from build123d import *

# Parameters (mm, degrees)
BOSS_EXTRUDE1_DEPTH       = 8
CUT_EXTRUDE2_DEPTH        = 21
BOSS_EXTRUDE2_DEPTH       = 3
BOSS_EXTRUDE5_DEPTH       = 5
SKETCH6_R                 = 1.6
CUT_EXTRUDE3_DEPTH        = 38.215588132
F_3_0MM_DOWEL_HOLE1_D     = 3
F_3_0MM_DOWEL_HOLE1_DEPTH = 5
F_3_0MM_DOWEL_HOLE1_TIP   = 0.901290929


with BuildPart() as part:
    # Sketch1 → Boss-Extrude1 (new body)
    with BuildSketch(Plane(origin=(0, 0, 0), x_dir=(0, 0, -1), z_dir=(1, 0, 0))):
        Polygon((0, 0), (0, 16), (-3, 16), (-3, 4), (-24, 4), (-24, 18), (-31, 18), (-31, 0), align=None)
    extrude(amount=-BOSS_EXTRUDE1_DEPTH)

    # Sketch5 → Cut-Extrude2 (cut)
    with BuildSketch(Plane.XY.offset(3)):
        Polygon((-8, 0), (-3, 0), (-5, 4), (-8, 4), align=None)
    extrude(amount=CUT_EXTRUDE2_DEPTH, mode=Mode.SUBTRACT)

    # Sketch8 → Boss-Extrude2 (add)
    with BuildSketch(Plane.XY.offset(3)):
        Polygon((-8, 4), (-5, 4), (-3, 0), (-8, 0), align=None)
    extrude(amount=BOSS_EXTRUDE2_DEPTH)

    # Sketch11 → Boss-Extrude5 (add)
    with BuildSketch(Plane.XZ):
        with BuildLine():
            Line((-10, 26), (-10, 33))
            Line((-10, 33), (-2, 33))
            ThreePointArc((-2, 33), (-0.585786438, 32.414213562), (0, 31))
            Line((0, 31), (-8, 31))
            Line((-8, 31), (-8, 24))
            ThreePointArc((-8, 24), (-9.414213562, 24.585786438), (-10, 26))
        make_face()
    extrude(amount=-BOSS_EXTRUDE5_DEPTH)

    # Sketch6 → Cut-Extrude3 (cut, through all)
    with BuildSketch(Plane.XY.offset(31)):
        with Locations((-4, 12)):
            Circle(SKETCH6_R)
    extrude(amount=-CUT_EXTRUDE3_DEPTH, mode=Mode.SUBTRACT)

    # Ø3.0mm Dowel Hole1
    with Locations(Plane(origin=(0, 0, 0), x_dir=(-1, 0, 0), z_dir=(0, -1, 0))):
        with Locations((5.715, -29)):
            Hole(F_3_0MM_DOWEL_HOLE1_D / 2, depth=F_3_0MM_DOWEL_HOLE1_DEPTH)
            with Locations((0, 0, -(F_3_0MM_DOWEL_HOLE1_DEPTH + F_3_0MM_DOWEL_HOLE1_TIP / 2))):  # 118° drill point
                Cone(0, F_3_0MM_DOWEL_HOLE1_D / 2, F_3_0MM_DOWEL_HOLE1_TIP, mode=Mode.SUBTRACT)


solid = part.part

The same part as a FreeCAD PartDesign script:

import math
import FreeCAD as App
import Part
import Sketcher

V = App.Vector
Q = App.Units.Quantity


def add_polygon(sketch, points):
    """Adds a closed chain of lines whose ends are joined by coincident constraints."""
    first, n = sketch.GeometryCount, len(points)
    for a, b in zip(points, points[1:] + points[:1]):
        sketch.addGeometry(Part.LineSegment(App.Vector(*a, 0), App.Vector(*b, 0)), False)
    for i in range(n):
        sketch.addConstraint(Sketcher.Constraint("Coincident", first + i, 2, first + (i + 1) % n, 1))

doc = App.newDocument("Part")
body = doc.addObject("PartDesign::Body", "Body")

# Sketch on YZ plane
sketch1 = doc.addObject("Sketcher::SketchObject", "Sketch")
body.addObject(sketch1)
sketch1.AttachmentSupport = (doc.YZ_Plane, [""])
sketch1.MapMode = "FlatFace"
add_polygon(sketch1, [(0, 0), (16, 0), (16, 3), (4, 3), (4, 24), (18, 24), (18, 31), (0, 31)])  # lines 0-7
sketch1.addConstraint([
    Sketcher.Constraint("Horizontal", 0),
    Sketcher.Constraint("Vertical", 1),
    Sketcher.Constraint("Horizontal", 2),
    Sketcher.Constraint("Vertical", 3),
    Sketcher.Constraint("Horizontal", 4),
    Sketcher.Constraint("Vertical", 5),
    Sketcher.Constraint("Horizontal", 6),
    Sketcher.Constraint("Vertical", 7),
    Sketcher.Constraint("Coincident", 7, 2, -1, 1),
    Sketcher.Constraint("DistanceX", 0, 1, 0, 2, Q("16 mm")),
    Sketcher.Constraint("DistanceX", 2, 2, 2, 1, Q("12 mm")),
    Sketcher.Constraint("DistanceX", 4, 1, 4, 2, Q("14 mm")),
    Sketcher.Constraint("DistanceY", 1, 1, 1, 2, Q("3 mm")),
    Sketcher.Constraint("DistanceY", 3, 1, 3, 2, Q("21 mm")),
    Sketcher.Constraint("DistanceY", 5, 1, 5, 2, Q("7 mm")),
])
pad1 = doc.addObject("PartDesign::Pad", "Pad")
body.addObject(pad1)
pad1.Profile = sketch1
pad1.Length = 8
pad1.Reversed = True

# Sketch on XY plane
sketch2 = doc.addObject("Sketcher::SketchObject", "Sketch001")
body.addObject(sketch2)
sketch2.AttachmentSupport = (doc.XY_Plane, [""])
sketch2.MapMode = "FlatFace"
sketch2.AttachmentOffset = App.Placement(V(0, 0, 3), App.Rotation())
add_polygon(sketch2, [(-8, 0), (-3, 0), (-5, 4), (-8, 4)])  # lines 0-3
sketch2.addConstraint([
    Sketcher.Constraint("Horizontal", 0),
    Sketcher.Constraint("Horizontal", 2),
    Sketcher.Constraint("Vertical", 3),
    Sketcher.Constraint("PointOnObject", 0, 2, -1),
    Sketcher.Constraint("DistanceX", 0, 1, 0, 2, Q("5 mm")),
    Sketcher.Constraint("DistanceX", 2, 2, 2, 1, Q("3 mm")),
    Sketcher.Constraint("DistanceY", 3, 2, 3, 1, Q("4 mm")),
    Sketcher.Constraint("DistanceX", 0, 2, -1, 1, Q("3 mm")),
])
pocket1 = doc.addObject("PartDesign::Pocket", "Pocket")
body.addObject(pocket1)
pocket1.Profile = sketch2
pocket1.Length = 21
pocket1.Reversed = True

# Sketch on XY plane
sketch3 = doc.addObject("Sketcher::SketchObject", "Sketch002")
body.addObject(sketch3)
sketch3.AttachmentSupport = (doc.XY_Plane, [""])
sketch3.MapMode = "FlatFace"
sketch3.AttachmentOffset = App.Placement(V(0, 0, 3), App.Rotation())
add_polygon(sketch3, [(-5, 4), (-8, 4), (-8, 0), (-3, 0)])  # lines 0-3
sketch3.addConstraint([
    Sketcher.Constraint("Horizontal", 0),
    Sketcher.Constraint("Vertical", 1),
    Sketcher.Constraint("Horizontal", 2),
    Sketcher.Constraint("PointOnObject", 1, 2, -1),
    Sketcher.Constraint("DistanceX", 0, 2, 0, 1, Q("3 mm")),
    Sketcher.Constraint("DistanceX", 2, 1, 2, 2, Q("5 mm")),
    Sketcher.Constraint("DistanceY", 1, 2, 1, 1, Q("4 mm")),
    Sketcher.Constraint("DistanceX", 0, 2, -1, 1, Q("8 mm")),
])
pad2 = doc.addObject("PartDesign::Pad", "Pad001")
body.addObject(pad2)
pad2.Profile = sketch3
pad2.Length = 3

# Sketch on XZ plane
sketch4 = doc.addObject("Sketcher::SketchObject", "Sketch003")
body.addObject(sketch4)
sketch4.AttachmentSupport = (doc.XZ_Plane, [""])
sketch4.MapMode = "FlatFace"
sketch4.addGeometry([
    Part.LineSegment(V(-10, 33, 0), V(-10, 26, 0)),  # 0
    Part.ArcOfCircle(Part.Circle(V(-8, 26, 0), V(0, 0, 1), 2), math.radians(-180), math.radians(-90)),  # 1
    Part.LineSegment(V(-8, 24, 0), V(-8, 31, 0)),  # 2
    Part.LineSegment(V(-8, 31, 0), V(0, 31, 0)),  # 3
    Part.ArcOfCircle(Part.Circle(V(-2, 31, 0), V(0, 0, 1), 2), math.radians(0), math.radians(90)),  # 4
    Part.LineSegment(V(-2, 33, 0), V(-10, 33, 0)),  # 5
], False)
sketch4.addConstraint([
    Sketcher.Constraint("Tangent", 0, 2, 1, 1),
    Sketcher.Constraint("Coincident", 1, 2, 2, 1),
    Sketcher.Constraint("Coincident", 2, 2, 3, 1),
    Sketcher.Constraint("Coincident", 3, 2, 4, 1),
    Sketcher.Constraint("Tangent", 4, 2, 5, 1),
    Sketcher.Constraint("Coincident", 5, 2, 0, 1),
    Sketcher.Constraint("Vertical", 0),
    Sketcher.Constraint("Vertical", 2),
    Sketcher.Constraint("Horizontal", 3),
    Sketcher.Constraint("Horizontal", 5),
    Sketcher.Constraint("Equal", 1, 4),
    Sketcher.Constraint("PointOnObject", 3, 2, -2),
    Sketcher.Constraint("Horizontal", 4, 3, 2, 2),
    Sketcher.Constraint("Equal", 3, 5),
    Sketcher.Constraint("Radius", 1, Q("2 mm")),
    Sketcher.Constraint("DistanceX", 3, 1, 3, 2, Q("8 mm")),
    Sketcher.Constraint("DistanceY", 0, 2, 0, 1, Q("7 mm")),
    Sketcher.Constraint("DistanceY", -1, 1, 1, 3, Q("26 mm")),
])
pad3 = doc.addObject("PartDesign::Pad", "Pad002")
body.addObject(pad3)
pad3.Profile = sketch4
pad3.Length = 5
pad3.Reversed = True

# Sketch on XY plane
sketch5 = doc.addObject("Sketcher::SketchObject", "Sketch004")
body.addObject(sketch5)
sketch5.AttachmentSupport = (doc.XY_Plane, [""])
sketch5.MapMode = "FlatFace"
sketch5.AttachmentOffset = App.Placement(V(0, 0, 31), App.Rotation())
sketch5.addGeometry(Part.Circle(V(-4, 12, 0), V(0, 0, 1), 1.6), False)
sketch5.addConstraint([
    Sketcher.Constraint("Diameter", 0, Q("3.2 mm")),
    Sketcher.Constraint("DistanceX", 0, 3, -1, 1, Q("4 mm")),
    Sketcher.Constraint("DistanceY", -1, 1, 0, 3, Q("12 mm")),
])
pocket2 = doc.addObject("PartDesign::Pocket", "Pocket001")
body.addObject(pocket2)
pocket2.Profile = sketch5
pocket2.Type = "ThroughAll"

# Sketch on XZ plane
sketch6 = doc.addObject("Sketcher::SketchObject", "Sketch005")
body.addObject(sketch6)
sketch6.AttachmentSupport = (doc.XZ_Plane, [""])
sketch6.MapMode = "FlatFace"
sketch6.addGeometry(Part.Circle(V(-5.7, 29, 0), V(0, 0, 1), 1.5), False)
sketch6.addConstraint([
    Sketcher.Constraint("Diameter", 0, Q("3 mm")),
    Sketcher.Constraint("DistanceY", -1, 1, 0, 3, Q("29 mm")),
    Sketcher.Constraint("DistanceX", 0, 3, -1, 1, Q("5.715 mm")),
])
doc.recompute()
hole = doc.addObject("PartDesign::Hole", "Hole")
body.addObject(hole)
hole.Profile = sketch6
hole.ThreadType = "None"
hole.Diameter = 3
hole.DepthType = "Dimension"
hole.Depth = 5
hole.DrillPoint = "Angled"
hole.DrillPointAngle = 118

doc.recompute()
